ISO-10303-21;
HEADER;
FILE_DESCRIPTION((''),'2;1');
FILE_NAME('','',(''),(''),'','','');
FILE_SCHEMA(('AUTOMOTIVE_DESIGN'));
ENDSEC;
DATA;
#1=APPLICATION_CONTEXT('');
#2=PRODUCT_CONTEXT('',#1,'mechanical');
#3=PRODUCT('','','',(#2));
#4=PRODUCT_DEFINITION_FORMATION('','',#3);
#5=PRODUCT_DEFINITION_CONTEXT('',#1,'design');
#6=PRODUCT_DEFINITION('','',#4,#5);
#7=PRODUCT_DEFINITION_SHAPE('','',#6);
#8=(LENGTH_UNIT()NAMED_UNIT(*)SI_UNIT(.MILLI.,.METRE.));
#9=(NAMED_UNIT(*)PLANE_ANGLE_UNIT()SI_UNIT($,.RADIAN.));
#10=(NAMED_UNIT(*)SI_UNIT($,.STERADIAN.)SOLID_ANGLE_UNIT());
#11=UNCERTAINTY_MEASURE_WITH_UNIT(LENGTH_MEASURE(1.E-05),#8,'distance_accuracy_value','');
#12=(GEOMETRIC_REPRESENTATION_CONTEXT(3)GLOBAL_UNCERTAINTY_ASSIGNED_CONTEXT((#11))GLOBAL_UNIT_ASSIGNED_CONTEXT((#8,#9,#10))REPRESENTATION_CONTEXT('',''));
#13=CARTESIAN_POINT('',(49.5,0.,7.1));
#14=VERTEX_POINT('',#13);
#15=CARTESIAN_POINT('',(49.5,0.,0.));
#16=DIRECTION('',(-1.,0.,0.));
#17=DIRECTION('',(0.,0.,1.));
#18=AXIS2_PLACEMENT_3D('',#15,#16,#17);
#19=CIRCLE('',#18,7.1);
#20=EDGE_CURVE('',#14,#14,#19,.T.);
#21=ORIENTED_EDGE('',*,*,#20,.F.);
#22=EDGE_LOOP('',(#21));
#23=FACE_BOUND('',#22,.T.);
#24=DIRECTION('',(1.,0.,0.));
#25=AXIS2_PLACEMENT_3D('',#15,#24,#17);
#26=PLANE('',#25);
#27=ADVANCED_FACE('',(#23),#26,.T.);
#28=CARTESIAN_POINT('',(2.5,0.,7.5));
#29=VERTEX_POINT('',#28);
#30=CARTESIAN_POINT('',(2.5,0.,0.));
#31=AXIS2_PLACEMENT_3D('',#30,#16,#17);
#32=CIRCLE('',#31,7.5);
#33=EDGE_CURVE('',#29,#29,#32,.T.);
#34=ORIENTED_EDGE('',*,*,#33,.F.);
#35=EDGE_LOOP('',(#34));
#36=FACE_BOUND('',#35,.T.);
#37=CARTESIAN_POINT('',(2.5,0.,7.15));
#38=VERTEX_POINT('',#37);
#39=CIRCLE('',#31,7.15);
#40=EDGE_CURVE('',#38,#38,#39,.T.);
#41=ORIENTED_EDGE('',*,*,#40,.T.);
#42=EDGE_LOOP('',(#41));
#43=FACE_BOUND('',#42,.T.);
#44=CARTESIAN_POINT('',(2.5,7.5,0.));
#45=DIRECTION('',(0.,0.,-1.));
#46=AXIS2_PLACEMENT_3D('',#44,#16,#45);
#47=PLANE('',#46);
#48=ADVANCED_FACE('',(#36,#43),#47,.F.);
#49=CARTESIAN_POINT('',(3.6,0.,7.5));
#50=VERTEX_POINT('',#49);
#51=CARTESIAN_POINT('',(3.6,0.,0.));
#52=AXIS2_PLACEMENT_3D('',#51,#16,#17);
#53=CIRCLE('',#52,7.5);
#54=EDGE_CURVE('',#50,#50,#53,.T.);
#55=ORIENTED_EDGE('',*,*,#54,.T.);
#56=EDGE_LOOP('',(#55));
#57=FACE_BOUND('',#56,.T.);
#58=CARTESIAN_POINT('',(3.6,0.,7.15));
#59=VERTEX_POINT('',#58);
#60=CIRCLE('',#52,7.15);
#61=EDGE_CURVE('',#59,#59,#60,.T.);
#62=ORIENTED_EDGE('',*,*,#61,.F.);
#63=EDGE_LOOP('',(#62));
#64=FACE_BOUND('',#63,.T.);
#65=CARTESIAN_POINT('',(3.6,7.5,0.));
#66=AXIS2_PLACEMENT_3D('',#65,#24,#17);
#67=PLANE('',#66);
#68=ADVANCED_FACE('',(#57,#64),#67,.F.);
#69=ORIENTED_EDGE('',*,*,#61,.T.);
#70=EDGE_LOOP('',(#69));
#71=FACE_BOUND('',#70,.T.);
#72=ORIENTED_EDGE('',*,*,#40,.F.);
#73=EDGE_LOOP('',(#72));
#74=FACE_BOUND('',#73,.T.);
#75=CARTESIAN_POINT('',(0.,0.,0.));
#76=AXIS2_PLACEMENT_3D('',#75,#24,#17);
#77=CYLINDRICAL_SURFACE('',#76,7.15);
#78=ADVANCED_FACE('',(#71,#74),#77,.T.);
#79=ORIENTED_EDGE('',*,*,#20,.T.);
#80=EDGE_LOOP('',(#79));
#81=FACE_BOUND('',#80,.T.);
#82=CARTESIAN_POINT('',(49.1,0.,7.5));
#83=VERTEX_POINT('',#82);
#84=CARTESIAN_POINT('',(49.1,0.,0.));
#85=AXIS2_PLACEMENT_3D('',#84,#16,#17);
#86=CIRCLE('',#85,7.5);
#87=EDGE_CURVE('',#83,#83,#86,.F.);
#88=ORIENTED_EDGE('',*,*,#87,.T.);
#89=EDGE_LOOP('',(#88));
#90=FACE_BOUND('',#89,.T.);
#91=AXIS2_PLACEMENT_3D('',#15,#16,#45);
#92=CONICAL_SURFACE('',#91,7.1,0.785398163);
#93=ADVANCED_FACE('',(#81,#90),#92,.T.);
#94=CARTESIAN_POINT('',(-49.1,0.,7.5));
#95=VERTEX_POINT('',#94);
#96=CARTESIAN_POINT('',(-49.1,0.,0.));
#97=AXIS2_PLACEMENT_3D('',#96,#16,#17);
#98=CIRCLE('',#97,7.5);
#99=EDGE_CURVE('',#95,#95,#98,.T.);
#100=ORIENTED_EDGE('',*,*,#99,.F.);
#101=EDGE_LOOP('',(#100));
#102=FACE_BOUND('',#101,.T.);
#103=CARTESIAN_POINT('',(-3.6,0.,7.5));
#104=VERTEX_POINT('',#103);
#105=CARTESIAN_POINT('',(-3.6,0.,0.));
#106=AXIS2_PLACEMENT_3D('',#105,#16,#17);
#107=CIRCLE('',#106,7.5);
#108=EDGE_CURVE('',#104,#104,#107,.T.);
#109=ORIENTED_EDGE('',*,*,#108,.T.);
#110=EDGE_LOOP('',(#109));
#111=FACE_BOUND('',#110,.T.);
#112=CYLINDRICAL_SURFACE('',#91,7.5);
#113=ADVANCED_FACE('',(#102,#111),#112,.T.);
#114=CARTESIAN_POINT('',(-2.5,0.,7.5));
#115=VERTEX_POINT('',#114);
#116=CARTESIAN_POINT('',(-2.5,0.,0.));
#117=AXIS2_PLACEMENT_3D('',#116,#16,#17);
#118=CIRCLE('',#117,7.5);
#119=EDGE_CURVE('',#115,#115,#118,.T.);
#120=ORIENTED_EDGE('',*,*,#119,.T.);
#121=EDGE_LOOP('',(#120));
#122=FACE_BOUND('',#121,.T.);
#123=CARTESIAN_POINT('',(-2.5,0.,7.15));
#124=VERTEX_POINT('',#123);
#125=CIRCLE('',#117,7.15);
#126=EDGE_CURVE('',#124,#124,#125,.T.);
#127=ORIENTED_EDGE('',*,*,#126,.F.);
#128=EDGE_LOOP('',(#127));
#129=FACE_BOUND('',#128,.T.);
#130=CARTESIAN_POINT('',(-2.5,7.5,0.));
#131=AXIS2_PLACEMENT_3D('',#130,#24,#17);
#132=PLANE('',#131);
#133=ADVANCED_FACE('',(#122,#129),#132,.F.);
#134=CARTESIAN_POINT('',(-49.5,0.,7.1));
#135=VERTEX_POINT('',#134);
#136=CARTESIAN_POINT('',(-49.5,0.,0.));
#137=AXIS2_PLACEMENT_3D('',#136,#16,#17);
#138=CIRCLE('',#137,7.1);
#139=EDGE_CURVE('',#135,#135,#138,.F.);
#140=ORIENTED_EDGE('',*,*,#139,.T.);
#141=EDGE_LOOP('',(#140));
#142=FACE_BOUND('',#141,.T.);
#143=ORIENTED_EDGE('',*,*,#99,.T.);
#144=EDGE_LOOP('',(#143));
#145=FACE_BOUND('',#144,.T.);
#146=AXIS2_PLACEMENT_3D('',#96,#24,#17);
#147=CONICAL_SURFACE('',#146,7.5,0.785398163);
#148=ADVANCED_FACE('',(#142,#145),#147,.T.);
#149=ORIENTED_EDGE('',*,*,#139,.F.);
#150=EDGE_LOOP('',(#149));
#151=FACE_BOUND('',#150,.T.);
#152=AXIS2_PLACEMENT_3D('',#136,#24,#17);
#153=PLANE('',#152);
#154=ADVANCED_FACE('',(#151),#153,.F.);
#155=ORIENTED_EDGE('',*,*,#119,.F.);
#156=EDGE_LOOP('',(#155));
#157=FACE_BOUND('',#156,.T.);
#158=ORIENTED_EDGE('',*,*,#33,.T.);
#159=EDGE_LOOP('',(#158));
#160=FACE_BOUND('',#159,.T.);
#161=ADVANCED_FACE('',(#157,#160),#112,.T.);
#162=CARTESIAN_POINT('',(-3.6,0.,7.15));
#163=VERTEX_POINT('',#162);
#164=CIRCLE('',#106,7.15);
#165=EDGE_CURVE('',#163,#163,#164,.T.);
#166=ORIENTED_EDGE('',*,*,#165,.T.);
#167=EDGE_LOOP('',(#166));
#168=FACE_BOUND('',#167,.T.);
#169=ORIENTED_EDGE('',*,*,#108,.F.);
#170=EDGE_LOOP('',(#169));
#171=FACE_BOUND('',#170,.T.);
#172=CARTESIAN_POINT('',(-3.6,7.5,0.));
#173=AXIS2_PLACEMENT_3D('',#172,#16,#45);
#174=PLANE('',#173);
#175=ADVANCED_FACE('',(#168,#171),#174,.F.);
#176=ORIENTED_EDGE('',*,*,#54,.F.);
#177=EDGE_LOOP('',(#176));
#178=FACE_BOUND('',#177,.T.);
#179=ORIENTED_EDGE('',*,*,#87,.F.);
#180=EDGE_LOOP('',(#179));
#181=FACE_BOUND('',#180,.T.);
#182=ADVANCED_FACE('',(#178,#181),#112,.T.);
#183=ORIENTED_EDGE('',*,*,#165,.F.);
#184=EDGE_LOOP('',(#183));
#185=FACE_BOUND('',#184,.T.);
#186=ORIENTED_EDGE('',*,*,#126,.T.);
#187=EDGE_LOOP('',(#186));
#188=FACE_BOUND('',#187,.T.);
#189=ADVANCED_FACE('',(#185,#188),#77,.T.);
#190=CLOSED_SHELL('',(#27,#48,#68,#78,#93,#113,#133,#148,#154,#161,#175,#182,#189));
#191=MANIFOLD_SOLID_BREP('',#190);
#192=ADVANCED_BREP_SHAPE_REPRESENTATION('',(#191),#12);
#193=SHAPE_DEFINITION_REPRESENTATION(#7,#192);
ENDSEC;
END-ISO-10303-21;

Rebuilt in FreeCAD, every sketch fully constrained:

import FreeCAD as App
import Part
import Sketcher
from FreeCAD import Vector
Q = App.Units.Quantity


def edges_at(feature, points):
    """Names of the edges that pass closest to the given points."""
    edges = feature.Shape.Edges
    near = lambda p: min(range(len(edges)), key=lambda i: edges[i].distToShape(Part.Vertex(*p))[0])
    return sorted({f"Edge{near(p) + 1}" for p in points})

doc = App.newDocument("Part")
params = doc.addObject("Spreadsheet::Sheet", "Params")
for row, (alias, value) in enumerate([
    ("sketch1_diameter", "15 mm"),
    ("pad1_length", "99 mm"),
    ("chamfer_size", "0.4 mm"),
    ("sketch2_width", "1.1 mm"),
    ("sketch2_height", "0.35 mm"),
    ("groove_angle", "360 deg"),
], start=1):
    params.set(f"A{row}", alias)
    params.set(f"B{row}", "=" + value)
    params.setAlias(f"B{row}", alias)

body = doc.addObject("PartDesign::Body", "Body")

sketch1 = body.newObject("Sketcher::SketchObject", "Sketch")
sketch1.AttachmentSupport = (doc.getObject("YZ_Plane"), [""])
sketch1.MapMode = "FlatFace"
sketch1.addGeometry(Part.Circle(Vector(0, 0, 0), Vector(0, 0, 1), 8), False)
sketch1.addConstraint([
    Sketcher.Constraint("Coincident", 0, 3, -1, 1),
    Sketcher.Constraint("Diameter", 0, Q("15 mm")),
])
sketch1.setExpression("Constraints[1]", "Params.sketch1_diameter")
pad1 = body.newObject("PartDesign::Pad", "Pad")
pad1.Profile = sketch1
pad1.setExpression("Length", "Params.pad1_length")
pad1.Midplane = True
doc.recompute()

chamfer = body.newObject("PartDesign::Chamfer", "Chamfer")
chamfer.Base = (pad1, edges_at(pad1, [(-49.5, 0, 7.5), (49.5, 0, 7.5)]))
chamfer.setExpression("Size", "Params.chamfer_size")

sketch2 = body.newObject("Sketcher::SketchObject", "Sketch001")
sketch2.AttachmentSupport = (doc.getObject("XY_Plane"), [""])
sketch2.MapMode = "FlatFace"
sketch2.addGeometry([
    Part.LineSegment(Vector(-3.6, 7.5, 0), Vector(-3.6, 7.15, 0)),
    Part.LineSegment(Vector(-3.6, 7.15, 0), Vector(-2.5, 7.15, 0)),
    Part.LineSegment(Vector(-2.5, 7.15, 0), Vector(-2.5, 7.5, 0)),
    Part.LineSegment(Vector(-2.5, 7.5, 0), Vector(-3.6, 7.5, 0)),
    Part.LineSegment(Vector(2.5, 7.5, 0), Vector(2.5, 7.15, 0)),
    Part.LineSegment(Vector(2.5, 7.15, 0), Vector(3.6, 7.15, 0)),
    Part.LineSegment(Vector(3.6, 7.15, 0), Vector(3.6, 7.5, 0)),
    Part.LineSegment(Vector(3.6, 7.5, 0), Vector(2.5, 7.5, 0)),
], False)
sketch2.addConstraint([
    Sketcher.Constraint("Coincident", 0, 2, 1, 1),
    Sketcher.Constraint("Coincident", 1, 2, 2, 1),
    Sketcher.Constraint("Coincident", 2, 2, 3, 1),
    Sketcher.Constraint("Coincident", 3, 2, 0, 1),
    Sketcher.Constraint("Coincident", 4, 2, 5, 1),
    Sketcher.Constraint("Coincident", 5, 2, 6, 1),
    Sketcher.Constraint("Coincident", 6, 2, 7, 1),
    Sketcher.Constraint("Coincident", 7, 2, 4, 1),
    Sketcher.Constraint("Vertical", 0),
    Sketcher.Constraint("Horizontal", 1),
    Sketcher.Constraint("Vertical", 2),
    Sketcher.Constraint("Horizontal", 3),
    Sketcher.Constraint("Vertical", 4),
    Sketcher.Constraint("Horizontal", 5),
    Sketcher.Constraint("Vertical", 6),
    Sketcher.Constraint("Horizontal", 7),
    Sketcher.Constraint("Symmetric", 1, 2, 4, 2, -2),
    Sketcher.Constraint("Symmetric", 3, 2, 6, 2, -2),
    Sketcher.Constraint("DistanceX", 1, 1, 1, 2, Q("1.1 mm")),
    Sketcher.Constraint("DistanceX", 1, 2, 4, 2, Q("5 mm")),
    Sketcher.Constraint("DistanceY", 0, 2, 0, 1, Q("0.35 mm")),
    Sketcher.Constraint("DistanceY", -1, 1, 2, 2, Q("7.5 mm")),
])
sketch2.setExpression("Constraints[18]", "Params.sketch2_width")
sketch2.setExpression("Constraints[20]", "Params.sketch2_height")
groove = body.newObject("PartDesign::Groove", "Groove")
groove.Profile = sketch2
groove.ReferenceAxis = (sketch2, ["H_Axis"])
groove.setExpression("Angle", "Params.groove_angle")

doc.recompute()
